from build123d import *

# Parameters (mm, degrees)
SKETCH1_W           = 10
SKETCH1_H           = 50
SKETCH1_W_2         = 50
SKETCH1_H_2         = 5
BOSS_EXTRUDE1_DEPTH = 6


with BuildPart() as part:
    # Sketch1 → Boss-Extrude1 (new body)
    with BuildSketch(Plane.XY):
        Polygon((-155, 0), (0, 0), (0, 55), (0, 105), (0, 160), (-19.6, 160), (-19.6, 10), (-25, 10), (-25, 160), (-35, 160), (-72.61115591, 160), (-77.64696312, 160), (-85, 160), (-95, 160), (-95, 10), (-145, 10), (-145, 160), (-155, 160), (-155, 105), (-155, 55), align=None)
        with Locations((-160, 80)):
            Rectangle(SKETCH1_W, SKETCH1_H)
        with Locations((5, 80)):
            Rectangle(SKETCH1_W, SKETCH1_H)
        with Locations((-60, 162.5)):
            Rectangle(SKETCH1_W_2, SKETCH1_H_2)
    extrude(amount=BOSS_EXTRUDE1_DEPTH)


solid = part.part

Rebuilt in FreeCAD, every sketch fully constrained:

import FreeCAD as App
import Part
import Sketcher
from FreeCAD import Vector


def add_polygon(sketch, points):
    """Adds a closed chain of lines whose ends are joined by coincident constraints."""
    first, n = sketch.GeometryCount, len(points)
    for a, b in zip(points, points[1:] + points[:1]):
        sketch.addGeometry(Part.LineSegment(App.Vector(*a, 0), App.Vector(*b, 0)), False)
    for i in range(n):
        sketch.addConstraint(Sketcher.Constraint("Coincident", first + i, 2, first + (i + 1) % n, 1))

doc = App.newDocument("Part")
body = doc.addObject("PartDesign::Body", "Body")

# Sketch on XY plane
sketch1 = body.newObject("Sketcher::SketchObject", "Sketch")
sketch1.AttachmentSupport = (doc.getObject("XY_Plane"), [""])
sketch1.MapMode = "FlatFace"
add_polygon(sketch1, [(-155, 0), (0, 0), (0, 55), (10, 55), (10, 105), (0, 105), (0, 160), (-20, 160), (-20, 10), (-25, 10), (-25, 160), (-35, 160), (-35, 165), (-85, 165), (-85, 160), (-95, 160), (-95, 10), (-145, 10), (-145, 160), (-155, 160), (-155, 105), (-165, 105), (-165, 55), (-155, 55)])  # lines 0-23
sketch1.addConstraint([
    Sketcher.Constraint("Horizontal", 0),
    Sketcher.Constraint("Vertical", 1),
    Sketcher.Constraint("Horizontal", 2),
    Sketcher.Constraint("Vertical", 3),
    Sketcher.Constraint("Horizontal", 4),
    Sketcher.Constraint("Vertical", 5),
    Sketcher.Constraint("Horizontal", 6),
    Sketcher.Constraint("Vertical", 7),
    Sketcher.Constraint("Horizontal", 8),
    Sketcher.Constraint("Vertical", 9),
    Sketcher.Constraint("Horizontal", 10),
    Sketcher.Constraint("Vertical", 11),
    Sketcher.Constraint("Horizontal", 12),
    Sketcher.Constraint("Vertical", 13),
    Sketcher.Constraint("Horizontal", 14),
    Sketcher.Constraint("Vertical", 15),
    Sketcher.Constraint("Horizontal", 16),
    Sketcher.Constraint("Vertical", 17),
    Sketcher.Constraint("Horizontal", 18),
    Sketcher.Constraint("Vertical", 19),
    Sketcher.Constraint("Horizontal", 20),
    Sketcher.Constraint("Vertical", 21),
    Sketcher.Constraint("Horizontal", 22),
    Sketcher.Constraint("Vertical", 23),
    Sketcher.Constraint("Coincident", 0, 2, -1, 1),
    Sketcher.Constraint("PointOnObject", 4, 2, -2),
    Sketcher.Constraint("Horizontal", 6, 2, 9, 2),
    Sketcher.Constraint("Horizontal", 10, 2, 13, 2),
    Sketcher.Constraint("Horizontal", 8, 2, 15, 2),
    Sketcher.Constraint("Horizontal", 14, 2, 17, 2),
    Sketcher.Constraint("Horizontal", 4, 2, 19, 2),
    Sketcher.Constraint("Horizontal", 2, 2, 21, 2),
    Sketcher.Constraint("Vertical", 19, 2, 22, 2),
    Sketcher.Constraint("Equal", 4, 10),
    Sketcher.Constraint("Equal", 10, 14),
    Sketcher.Constraint("Equal", 12, 16),
    Sketcher.Constraint("Equal", 14, 18),
    Sketcher.Constraint("Equal", 18, 20),
    Sketcher.Constraint("Equal", 16, 3),
    Sketcher.Constraint("Equal", 1, 5),
    Sketcher.Constraint("DistanceX", 0, 1, 0, 2, 155.0),
    Sketcher.Constraint("DistanceX", 2, 1, 2, 2, 10.0),
    Sketcher.Constraint("DistanceX", 12, 2, 12, 1, 50.0),
    Sketcher.Constraint("DistanceY", 1, 1, 1, 2, 55.0),
    Sketcher.Constraint("DistanceY", 7, 2, 7, 1, 150.0),
    Sketcher.Constraint("DistanceY", 11, 1, 11, 2, 5.0),
    Sketcher.Constraint("DistanceX", 6, 2, 6, 1, 19.6),
])
pad1 = body.newObject("PartDesign::Pad", "Pad")
pad1.Profile = sketch1
pad1.Length = 6

doc.recompute()
